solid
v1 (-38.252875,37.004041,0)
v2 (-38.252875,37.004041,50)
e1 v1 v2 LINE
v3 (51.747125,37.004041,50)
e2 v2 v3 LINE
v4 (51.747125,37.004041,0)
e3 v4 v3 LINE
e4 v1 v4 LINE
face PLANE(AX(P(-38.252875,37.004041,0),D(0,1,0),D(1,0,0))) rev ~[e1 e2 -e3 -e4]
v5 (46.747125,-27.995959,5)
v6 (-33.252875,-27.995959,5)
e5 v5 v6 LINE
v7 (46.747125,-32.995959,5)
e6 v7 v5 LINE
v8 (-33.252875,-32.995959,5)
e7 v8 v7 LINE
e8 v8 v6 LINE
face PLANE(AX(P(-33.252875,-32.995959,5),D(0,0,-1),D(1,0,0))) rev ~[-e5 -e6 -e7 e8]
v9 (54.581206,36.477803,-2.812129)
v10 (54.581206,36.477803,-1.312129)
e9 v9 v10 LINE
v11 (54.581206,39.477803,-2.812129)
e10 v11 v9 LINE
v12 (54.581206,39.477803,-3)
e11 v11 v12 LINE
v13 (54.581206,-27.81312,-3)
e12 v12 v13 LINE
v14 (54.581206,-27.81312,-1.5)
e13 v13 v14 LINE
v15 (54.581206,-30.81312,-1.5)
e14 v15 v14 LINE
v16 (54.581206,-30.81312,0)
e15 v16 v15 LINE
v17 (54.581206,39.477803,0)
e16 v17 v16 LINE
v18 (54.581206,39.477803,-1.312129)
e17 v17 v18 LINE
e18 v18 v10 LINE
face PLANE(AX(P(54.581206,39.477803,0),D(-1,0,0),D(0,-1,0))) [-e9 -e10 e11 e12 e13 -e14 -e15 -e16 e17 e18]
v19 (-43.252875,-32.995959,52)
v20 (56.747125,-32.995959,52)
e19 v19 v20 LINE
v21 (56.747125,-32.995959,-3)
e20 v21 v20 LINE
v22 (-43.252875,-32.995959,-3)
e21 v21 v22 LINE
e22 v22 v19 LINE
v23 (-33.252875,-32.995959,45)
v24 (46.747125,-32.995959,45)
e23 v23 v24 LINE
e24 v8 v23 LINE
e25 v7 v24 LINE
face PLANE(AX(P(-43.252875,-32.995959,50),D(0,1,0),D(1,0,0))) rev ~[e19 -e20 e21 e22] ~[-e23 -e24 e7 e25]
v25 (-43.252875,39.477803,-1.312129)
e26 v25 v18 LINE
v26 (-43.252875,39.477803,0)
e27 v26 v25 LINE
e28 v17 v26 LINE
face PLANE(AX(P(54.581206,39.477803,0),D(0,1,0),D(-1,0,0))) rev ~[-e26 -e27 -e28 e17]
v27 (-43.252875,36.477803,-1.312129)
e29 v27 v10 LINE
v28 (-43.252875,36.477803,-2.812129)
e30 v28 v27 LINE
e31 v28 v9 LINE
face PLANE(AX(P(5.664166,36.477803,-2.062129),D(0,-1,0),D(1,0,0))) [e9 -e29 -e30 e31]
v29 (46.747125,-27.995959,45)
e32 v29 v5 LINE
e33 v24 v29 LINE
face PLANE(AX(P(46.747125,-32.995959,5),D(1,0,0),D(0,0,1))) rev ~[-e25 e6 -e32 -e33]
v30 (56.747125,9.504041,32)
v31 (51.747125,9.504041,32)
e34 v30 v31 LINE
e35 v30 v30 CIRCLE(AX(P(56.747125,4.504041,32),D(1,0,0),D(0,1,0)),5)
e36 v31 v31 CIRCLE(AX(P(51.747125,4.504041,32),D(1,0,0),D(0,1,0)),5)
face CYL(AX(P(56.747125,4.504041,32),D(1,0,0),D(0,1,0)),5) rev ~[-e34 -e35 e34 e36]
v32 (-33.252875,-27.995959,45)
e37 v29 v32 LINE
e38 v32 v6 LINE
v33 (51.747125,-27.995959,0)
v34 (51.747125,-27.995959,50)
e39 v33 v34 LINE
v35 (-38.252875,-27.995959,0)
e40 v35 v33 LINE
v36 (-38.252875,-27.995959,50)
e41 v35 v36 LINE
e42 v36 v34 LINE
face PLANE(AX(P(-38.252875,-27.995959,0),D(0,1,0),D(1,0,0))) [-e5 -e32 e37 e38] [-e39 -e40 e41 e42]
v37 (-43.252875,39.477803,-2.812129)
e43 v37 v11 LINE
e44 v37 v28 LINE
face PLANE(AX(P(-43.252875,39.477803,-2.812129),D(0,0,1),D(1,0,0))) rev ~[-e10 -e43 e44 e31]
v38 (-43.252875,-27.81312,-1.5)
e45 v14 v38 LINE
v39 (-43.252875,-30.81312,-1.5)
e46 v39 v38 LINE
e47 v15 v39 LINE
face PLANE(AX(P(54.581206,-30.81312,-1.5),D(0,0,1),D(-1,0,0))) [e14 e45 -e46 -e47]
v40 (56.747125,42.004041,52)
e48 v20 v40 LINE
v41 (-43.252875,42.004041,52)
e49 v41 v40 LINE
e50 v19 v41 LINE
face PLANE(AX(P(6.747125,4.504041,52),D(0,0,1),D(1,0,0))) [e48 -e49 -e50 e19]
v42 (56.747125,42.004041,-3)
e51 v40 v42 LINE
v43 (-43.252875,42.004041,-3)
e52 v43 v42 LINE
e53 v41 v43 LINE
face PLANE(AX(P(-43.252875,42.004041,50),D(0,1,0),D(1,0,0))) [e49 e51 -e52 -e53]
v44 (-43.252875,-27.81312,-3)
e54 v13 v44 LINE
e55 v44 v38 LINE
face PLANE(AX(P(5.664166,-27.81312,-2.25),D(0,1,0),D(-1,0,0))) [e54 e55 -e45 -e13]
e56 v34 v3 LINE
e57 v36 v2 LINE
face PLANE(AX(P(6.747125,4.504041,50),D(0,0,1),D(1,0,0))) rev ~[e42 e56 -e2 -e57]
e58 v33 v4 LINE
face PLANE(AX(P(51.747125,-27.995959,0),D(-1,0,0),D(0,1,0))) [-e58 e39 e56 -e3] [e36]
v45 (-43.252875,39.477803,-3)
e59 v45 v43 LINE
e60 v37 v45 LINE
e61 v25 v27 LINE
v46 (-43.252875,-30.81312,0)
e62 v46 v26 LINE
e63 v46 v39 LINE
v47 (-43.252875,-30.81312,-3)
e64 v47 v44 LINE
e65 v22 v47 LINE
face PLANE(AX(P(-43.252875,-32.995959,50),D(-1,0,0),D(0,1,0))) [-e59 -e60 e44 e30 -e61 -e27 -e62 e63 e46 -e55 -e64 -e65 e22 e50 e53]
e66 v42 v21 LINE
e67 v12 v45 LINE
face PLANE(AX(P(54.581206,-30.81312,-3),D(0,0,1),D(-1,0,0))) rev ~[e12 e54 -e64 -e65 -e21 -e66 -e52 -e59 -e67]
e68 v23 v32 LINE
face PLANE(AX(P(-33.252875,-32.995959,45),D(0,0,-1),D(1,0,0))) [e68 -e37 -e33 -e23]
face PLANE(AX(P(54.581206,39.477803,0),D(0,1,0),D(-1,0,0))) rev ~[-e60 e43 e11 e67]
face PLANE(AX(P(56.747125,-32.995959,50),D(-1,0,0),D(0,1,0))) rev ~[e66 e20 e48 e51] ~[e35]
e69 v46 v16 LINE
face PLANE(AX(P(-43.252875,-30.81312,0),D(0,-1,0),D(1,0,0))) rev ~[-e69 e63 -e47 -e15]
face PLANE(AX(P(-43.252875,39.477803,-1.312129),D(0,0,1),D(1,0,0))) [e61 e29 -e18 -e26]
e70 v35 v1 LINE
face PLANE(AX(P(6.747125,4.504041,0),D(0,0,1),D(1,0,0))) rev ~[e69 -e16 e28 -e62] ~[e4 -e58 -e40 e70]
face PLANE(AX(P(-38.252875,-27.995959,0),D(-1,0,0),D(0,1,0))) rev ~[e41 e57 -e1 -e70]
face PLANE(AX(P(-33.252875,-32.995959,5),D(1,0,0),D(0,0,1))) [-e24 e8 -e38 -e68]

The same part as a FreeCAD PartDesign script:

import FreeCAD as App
import Part
import Sketcher
Q = App.Units.Quantity

doc = App.newDocument("Part")
params = doc.addObject("Spreadsheet::Sheet", "Params")
for row, (alias, value) in enumerate([
    ("sketch1_width", "100 mm"),
    ("sketch1_width2", "90 mm"),
    ("sketch1_height", "75 mm"),
    ("sketch1_height2", "65 mm"),
    ("pad1_length", "50 mm"),
    ("sketch2_width", "100 mm"),
    ("sketch2_height", "75 mm"),
    ("pad2_length", "3 mm"),
    ("sketch3_height", "1.5 mm"),
    ("pad3_length", "3 mm"),
    ("sketch4_height", "1.5 mm"),
    ("pad4_length", "3 mm"),
    ("sketch5_width", "100 mm"),
    ("sketch5_height", "75 mm"),
    ("pad5_length", "2 mm"),
    ("sketch6_width", "80 mm"),
    ("sketch6_height", "40 mm"),
    ("pocket1_length", "25 mm"),
    ("sketch7_diameter", "10 mm"),
    ("pocket2_length", "25 mm"),
], start=1):
    params.set(f"A{row}", alias)
    params.set(f"B{row}", "=" + value)
    params.setAlias(f"B{row}", alias)

body = doc.addObject("PartDesign::Body", "Body")

sketch1 = body.newObject("Sketcher::SketchObject", "Sketch")
sketch1.AttachmentSupport = (doc.getObject("XY_Plane"), [""])
sketch1.MapMode = "FlatFace"
sketch1.addGeometry(Part.LineSegment(App.Vector(-43, 42, 0), App.Vector(-43, -33, 0)), False)
sketch1.addGeometry(Part.LineSegment(App.Vector(-43, -33, 0), App.Vector(57, -33, 0)), False)
sketch1.addGeometry(Part.LineSegment(App.Vector(57, -33, 0), App.Vector(57, 42, 0)), False)
sketch1.addGeometry(Part.LineSegment(App.Vector(57, 42, 0), App.Vector(-43, 42, 0)), False)
sketch1.addGeometry(Part.LineSegment(App.Vector(52, -28, 0), App.Vector(-38, -28, 0)), False)
sketch1.addGeometry(Part.LineSegment(App.Vector(-38, -28, 0), App.Vector(-38, 37, 0)), False)
sketch1.addGeometry(Part.LineSegment(App.Vector(-38, 37, 0), App.Vector(52, 37, 0)), False)
sketch1.addGeometry(Part.LineSegment(App.Vector(52, 37, 0), App.Vector(52, -28, 0)), False)
sketch1.addConstraint(Sketcher.Constraint("Coincident", 0, 2, 1, 1))
sketch1.addConstraint(Sketcher.Constraint("Coincident", 1, 2, 2, 1))
sketch1.addConstraint(Sketcher.Constraint("Coincident", 2, 2, 3, 1))
sketch1.addConstraint(Sketcher.Constraint("Coincident", 3, 2, 0, 1))
sketch1.addConstraint(Sketcher.Constraint("Coincident", 4, 2, 5, 1))
sketch1.addConstraint(Sketcher.Constraint("Coincident", 5, 2, 6, 1))
sketch1.addConstraint(Sketcher.Constraint("Coincident", 6, 2, 7, 1))
sketch1.addConstraint(Sketcher.Constraint("Coincident", 7, 2, 4, 1))
sketch1.addConstraint(Sketcher.Constraint("Vertical", 0))
sketch1.addConstraint(Sketcher.Constraint("Horizontal", 1))
sketch1.addConstraint(Sketcher.Constraint("Vertical", 2))
sketch1.addConstraint(Sketcher.Constraint("Horizontal", 3))
sketch1.addConstraint(Sketcher.Constraint("Horizontal", 4))
sketch1.addConstraint(Sketcher.Constraint("Vertical", 5))
sketch1.addConstraint(Sketcher.Constraint("Horizontal", 6))
sketch1.addConstraint(Sketcher.Constraint("Vertical", 7))
sketch1.addConstraint(Sketcher.Constraint("DistanceX", 1, 1, 1, 2, Q("100 mm")))
sketch1.addConstraint(Sketcher.Constraint("DistanceX", 4, 2, 4, 1, Q("90 mm")))
sketch1.addConstraint(Sketcher.Constraint("DistanceY", 0, 2, 0, 1, Q("75 mm")))
sketch1.addConstraint(Sketcher.Constraint("DistanceY", 5, 1, 5, 2, Q("65 mm")))
sketch1.addConstraint(Sketcher.Constraint("DistanceX", 0, 2, 4, 2, Q("5 mm")))
sketch1.addConstraint(Sketcher.Constraint("DistanceY", 0, 2, 4, 2, Q("5 mm")))
sketch1.addConstraint(Sketcher.Constraint("DistanceY", 0, 2, -1, 1, Q("32.995959 mm")))
sketch1.addConstraint(Sketcher.Constraint("DistanceX", 0, 2, -1, 1, Q("43.252875 mm")))
sketch1.setExpression("Constraints[16]", "Params.sketch1_width")
sketch1.setExpression("Constraints[17]", "Params.sketch1_width2")
sketch1.setExpression("Constraints[18]", "Params.sketch1_height")
sketch1.setExpression("Constraints[19]", "Params.sketch1_height2")
pad1 = body.newObject("PartDesign::Pad", "Pad")
pad1.Profile = sketch1
pad1.setExpression("Length", "Params.pad1_length")

sketch2 = body.newObject("Sketcher::SketchObject", "Sketch001")
sketch2.AttachmentSupport = (doc.getObject("XY_Plane"), [""])
sketch2.MapMode = "FlatFace"
sketch2.addGeometry(Part.LineSegment(App.Vector(56.7, -33, 0), App.Vector(-43.3, -33, 0)), False)
sketch2.addGeometry(Part.LineSegment(App.Vector(-43.3, -33, 0), App.Vector(-43.3, -30.8, 0)), False)
sketch2.addGeometry(Part.LineSegment(App.Vector(-43.3, -30.8, 0), App.Vector(54.6, -30.8, 0)), False)
sketch2.addGeometry(Part.LineSegment(App.Vector(54.6, -30.8, 0), App.Vector(54.6, 39.5, 0)), False)
sketch2.addGeometry(Part.LineSegment(App.Vector(54.6, 39.5, 0), App.Vector(-43.3, 39.5, 0)), False)
sketch2.addGeometry(Part.LineSegment(App.Vector(-43.3, 39.5, 0), App.Vector(-43.3, 42, 0)), False)
sketch2.addGeometry(Part.LineSegment(App.Vector(-43.3, 42, 0), App.Vector(56.7, 42, 0)), False)
sketch2.addGeometry(Part.LineSegment(App.Vector(56.7, 42, 0), App.Vector(56.7, -33, 0)), False)
sketch2.addConstraint(Sketcher.Constraint("Coincident", 0, 2, 1, 1))
sketch2.addConstraint(Sketcher.Constraint("Coincident", 1, 2, 2, 1))
sketch2.addConstraint(Sketcher.Constraint("Coincident", 2, 2, 3, 1))
sketch2.addConstraint(Sketcher.Constraint("Coincident", 3, 2, 4, 1))
sketch2.addConstraint(Sketcher.Constraint("Coincident", 4, 2, 5, 1))
sketch2.addConstraint(Sketcher.Constraint("Coincident", 5, 2, 6, 1))
sketch2.addConstraint(Sketcher.Constraint("Coincident", 6, 2, 7, 1))
sketch2.addConstraint(Sketcher.Constraint("Coincident", 7, 2, 0, 1))
sketch2.addConstraint(Sketcher.Constraint("Horizontal", 0))
sketch2.addConstraint(Sketcher.Constraint("Vertical", 1))
sketch2.addConstraint(Sketcher.Constraint("Horizontal", 2))
sketch2.addConstraint(Sketcher.Constraint("Vertical", 3))
sketch2.addConstraint(Sketcher.Constraint("Horizontal", 4))
sketch2.addConstraint(Sketcher.Constraint("Vertical", 5))
sketch2.addConstraint(Sketcher.Constraint("Horizontal", 6))
sketch2.addConstraint(Sketcher.Constraint("Vertical", 7))
sketch2.addConstraint(Sketcher.Constraint("Vertical", 1, 2, 4, 2))
sketch2.addConstraint(Sketcher.Constraint("DistanceX", 0, 2, 0, 1, Q("100 mm")))
sketch2.addConstraint(Sketcher.Constraint("DistanceY", 7, 2, 7, 1, Q("75 mm")))
sketch2.addConstraint(Sketcher.Constraint("DistanceX", 2, 1, 2, 2, Q("97.834082 mm")))
sketch2.addConstraint(Sketcher.Constraint("DistanceY", 1, 1, 1, 2, Q("2.182839 mm")))
sketch2.addConstraint(Sketcher.Constraint("DistanceY", 5, 1, 5, 2, Q("2.526238 mm")))
sketch2.addConstraint(Sketcher.Constraint("DistanceY", 0, 2, -1, 1, Q("32.995959 mm")))
sketch2.addConstraint(Sketcher.Constraint("DistanceX", 0, 2, -1, 1, Q("43.252875 mm")))
sketch2.setExpression("Constraints[17]", "Params.sketch2_width")
sketch2.setExpression("Constraints[18]", "Params.sketch2_height")
pad2 = body.newObject("PartDesign::Pad", "Pad001")
pad2.Profile = sketch2
pad2.setExpression("Length", "Params.pad2_length")
pad2.Reversed = True

sketch3 = body.newObject("Sketcher::SketchObject", "Sketch002")
sketch3.AttachmentSupport = (doc.getObject("XZ_Plane"), [""])
sketch3.MapMode = "FlatFace"
sketch3.AttachmentOffset = App.Placement(App.Vector(0, 0, 30.81312), App.Rotation())
sketch3.addGeometry(Part.LineSegment(App.Vector(54.6, -1.5, 0), App.Vector(54.6, -3, 0)), False)
sketch3.addGeometry(Part.LineSegment(App.Vector(54.6, -3, 0), App.Vector(-43.3, -3, 0)), False)
sketch3.addGeometry(Part.LineSegment(App.Vector(-43.3, -3, 0), App.Vector(-43.3, -1.5, 0)), False)
sketch3.addGeometry(Part.LineSegment(App.Vector(-43.3, -1.5, 0), App.Vector(54.6, -1.5, 0)), False)
sketch3.addConstraint(Sketcher.Constraint("Coincident", 0, 2, 1, 1))
sketch3.addConstraint(Sketcher.Constraint("Coincident", 1, 2, 2, 1))
sketch3.addConstraint(Sketcher.Constraint("Coincident", 2, 2, 3, 1))
sketch3.addConstraint(Sketcher.Constraint("Coincident", 3, 2, 0, 1))
sketch3.addConstraint(Sketcher.Constraint("Vertical", 0))
sketch3.addConstraint(Sketcher.Constraint("Horizontal", 1))
sketch3.addConstraint(Sketcher.Constraint("Vertical", 2))
sketch3.addConstraint(Sketcher.Constraint("Horizontal", 3))
sketch3.addConstraint(Sketcher.Constraint("DistanceY", 0, 2, 0, 1, Q("1.5 mm")))
sketch3.addConstraint(Sketcher.Constraint("DistanceY", 0, 2, -1, 1, Q("3 mm")))
sketch3.addConstraint(Sketcher.Constraint("DistanceX", 1, 2, 1, 1, Q("97.834082 mm")))
sketch3.addConstraint(Sketcher.Constraint("DistanceX", -1, 1, 0, 2, Q("54.581206 mm")))
sketch3.setExpression("Constraints[8]", "Params.sketch3_height")
pad3 = body.newObject("PartDesign::Pad", "Pad002")
pad3.Profile = sketch3
pad3.setExpression("Length", "Params.pad3_length")
pad3.Reversed = True

sketch4 = body.newObject("Sketcher::SketchObject", "Sketch003")
sketch4.AttachmentSupport = (doc.getObject("XZ_Plane"), [""])
sketch4.MapMode = "FlatFace"
sketch4.AttachmentOffset = App.Placement(App.Vector(0, 0, -39.477803), App.Rotation())
sketch4.addGeometry(Part.LineSegment(App.Vector(-43.3, -1.3, 0), App.Vector(-43.3, -2.8, 0)), False)
sketch4.addGeometry(Part.LineSegment(App.Vector(-43.3, -2.8, 0), App.Vector(54.6, -2.8, 0)), False)
sketch4.addGeometry(Part.LineSegment(App.Vector(54.6, -2.8, 0), App.Vector(54.6, -1.3, 0)), False)
sketch4.addGeometry(Part.LineSegment(App.Vector(54.6, -1.3, 0), App.Vector(-43.3, -1.3, 0)), False)
sketch4.addConstraint(Sketcher.Constraint("Coincident", 0, 2, 1, 1))
sketch4.addConstraint(Sketcher.Constraint("Coincident", 1, 2, 2, 1))
sketch4.addConstraint(Sketcher.Constraint("Coincident", 2, 2, 3, 1))
sketch4.addConstraint(Sketcher.Constraint("Coincident", 3, 2, 0, 1))
sketch4.addConstraint(Sketcher.Constraint("Vertical", 0))
sketch4.addConstraint(Sketcher.Constraint("Horizontal", 1))
sketch4.addConstraint(Sketcher.Constraint("Vertical", 2))
sketch4.addConstraint(Sketcher.Constraint("Horizontal", 3))
sketch4.addConstraint(Sketcher.Constraint("DistanceY", 0, 2, 0, 1, Q("1.5 mm")))
sketch4.addConstraint(Sketcher.Constraint("DistanceX", 1, 1, 1, 2, Q("97.834082 mm")))
sketch4.addConstraint(Sketcher.Constraint("DistanceY", 0, 2, -1, 1, Q("2.812129 mm")))
sketch4.addConstraint(Sketcher.Constraint("DistanceX", 0, 2, -1, 1, Q("43.252875 mm")))
sketch4.setExpression("Constraints[8]", "Params.sketch4_height")
pad4 = body.newObject("PartDesign::Pad", "Pad003")
pad4.Profile = sketch4
pad4.setExpression("Length", "Params.pad4_length")

sketch5 = body.newObject("Sketcher::SketchObject", "Sketch004")
sketch5.AttachmentSupport = (doc.getObject("XY_Plane"), [""])
sketch5.MapMode = "FlatFace"
sketch5.AttachmentOffset = App.Placement(App.Vector(0, 0, 50), App.Rotation())
sketch5.addGeometry(Part.LineSegment(App.Vector(-43, 42, 0), App.Vector(-43, -33, 0)), False)
sketch5.addGeometry(Part.LineSegment(App.Vector(-43, -33, 0), App.Vector(57, -33, 0)), False)
sketch5.addGeometry(Part.LineSegment(App.Vector(57, -33, 0), App.Vector(57, 42, 0)), False)
sketch5.addGeometry(Part.LineSegment(App.Vector(57, 42, 0), App.Vector(-43, 42, 0)), False)
sketch5.addConstraint(Sketcher.Constraint("Coincident", 0, 2, 1, 1))
sketch5.addConstraint(Sketcher.Constraint("Coincident", 1, 2, 2, 1))
sketch5.addConstraint(Sketcher.Constraint("Coincident", 2, 2, 3, 1))
sketch5.addConstraint(Sketcher.Constraint("Coincident", 3, 2, 0, 1))
sketch5.addConstraint(Sketcher.Constraint("Vertical", 0))
sketch5.addConstraint(Sketcher.Constraint("Horizontal", 1))
sketch5.addConstraint(Sketcher.Constraint("Vertical", 2))
sketch5.addConstraint(Sketcher.Constraint("Horizontal", 3))
sketch5.addConstraint(Sketcher.Constraint("DistanceX", 1, 1, 1, 2, Q("100 mm")))
sketch5.addConstraint(Sketcher.Constraint("DistanceY", 0, 2, 0, 1, Q("75 mm")))
sketch5.addConstraint(Sketcher.Constraint("DistanceY", 0, 2, -1, 1, Q("32.995959 mm")))
sketch5.addConstraint(Sketcher.Constraint("DistanceX", 0, 2, -1, 1, Q("43.252875 mm")))
sketch5.setExpression("Constraints[8]", "Params.sketch5_width")
sketch5.setExpression("Constraints[9]", "Params.sketch5_height")
pad5 = body.newObject("PartDesign::Pad", "Pad004")
pad5.Profile = sketch5
pad5.setExpression("Length", "Params.pad5_length")

sketch6 = body.newObject("Sketcher::SketchObject", "Sketch005")
sketch6.AttachmentSupport = (doc.getObject("XZ_Plane"), [""])
sketch6.MapMode = "FlatFace"
sketch6.AttachmentOffset = App.Placement(App.Vector(0, 0, 32.995959), App.Rotation())
sketch6.addGeometry(Part.LineSegment(App.Vector(-33, 45, 0), App.Vector(-33, 5, 0)), False)
sketch6.addGeometry(Part.LineSegment(App.Vector(-33, 5, 0), App.Vector(47, 5, 0)), False)
sketch6.addGeometry(Part.LineSegment(App.Vector(47, 5, 0), App.Vector(47, 45, 0)), False)
sketch6.addGeometry(Part.LineSegment(App.Vector(47, 45, 0), App.Vector(-33, 45, 0)), False)
sketch6.addConstraint(Sketcher.Constraint("Coincident", 0, 2, 1, 1))
sketch6.addConstraint(Sketcher.Constraint("Coincident", 1, 2, 2, 1))
sketch6.addConstraint(Sketcher.Constraint("Coincident", 2, 2, 3, 1))
sketch6.addConstraint(Sketcher.Constraint("Coincident", 3, 2, 0, 1))
sketch6.addConstraint(Sketcher.Constraint("Vertical", 0))
sketch6.addConstraint(Sketcher.Constraint("Horizontal", 1))
sketch6.addConstraint(Sketcher.Constraint("Vertical", 2))
sketch6.addConstraint(Sketcher.Constraint("Horizontal", 3))
sketch6.addConstraint(Sketcher.Constraint("DistanceX", 1, 1, 1, 2, Q("80 mm")))
sketch6.addConstraint(Sketcher.Constraint("DistanceY", 0, 2, 0, 1, Q("40 mm")))
sketch6.addConstraint(Sketcher.Constraint("DistanceY", -1, 1, 0, 2, Q("5 mm")))
sketch6.addConstraint(Sketcher.Constraint("DistanceX", 0, 2, -1, 1, Q("33.252875 mm")))
sketch6.setExpression("Constraints[8]", "Params.sketch6_width")
sketch6.setExpression("Constraints[9]", "Params.sketch6_height")
pocket1 = body.newObject("PartDesign::Pocket", "Pocket")
pocket1.Profile = sketch6
pocket1.setExpression("Length", "Params.pocket1_length")

sketch7 = body.newObject("Sketcher::SketchObject", "Sketch006")
sketch7.AttachmentSupport = (doc.getObject("YZ_Plane"), [""])
sketch7.MapMode = "FlatFace"
sketch7.AttachmentOffset = App.Placement(App.Vector(0, 0, 56.747125), App.Rotation())
sketch7.addGeometry(Part.Circle(App.Vector(5, 32, 0), App.Vector(0, 0, 1), 5), False)
sketch7.addConstraint(Sketcher.Constraint("Diameter", 0, Q("10 mm")))
sketch7.addConstraint(Sketcher.Constraint("DistanceY", -1, 1, 0, 3, Q("32 mm")))
sketch7.addConstraint(Sketcher.Constraint("DistanceX", -1, 1, 0, 3, Q("4.504041 mm")))
sketch7.setExpression("Constraints[0]", "Params.sketch7_diameter")
pocket2 = body.newObject("PartDesign::Pocket", "Pocket001")
pocket2.Profile = sketch7
pocket2.setExpression("Length", "Params.pocket2_length")

doc.recompute()
